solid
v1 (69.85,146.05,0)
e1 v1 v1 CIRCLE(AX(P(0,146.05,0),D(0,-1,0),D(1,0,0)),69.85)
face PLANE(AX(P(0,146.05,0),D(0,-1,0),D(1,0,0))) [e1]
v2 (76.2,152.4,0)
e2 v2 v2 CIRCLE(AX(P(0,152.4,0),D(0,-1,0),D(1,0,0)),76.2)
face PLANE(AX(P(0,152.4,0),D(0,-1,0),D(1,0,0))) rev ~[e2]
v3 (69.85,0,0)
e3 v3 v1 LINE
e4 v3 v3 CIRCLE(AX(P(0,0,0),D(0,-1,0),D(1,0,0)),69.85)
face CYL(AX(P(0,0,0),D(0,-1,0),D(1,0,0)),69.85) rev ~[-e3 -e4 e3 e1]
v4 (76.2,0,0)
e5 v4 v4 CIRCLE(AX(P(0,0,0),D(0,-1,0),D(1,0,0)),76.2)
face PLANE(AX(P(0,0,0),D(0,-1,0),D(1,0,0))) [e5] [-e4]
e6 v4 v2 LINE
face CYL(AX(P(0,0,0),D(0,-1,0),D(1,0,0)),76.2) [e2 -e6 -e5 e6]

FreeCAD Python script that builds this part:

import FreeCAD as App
import Part
import Sketcher

V = App.Vector
Q = App.Units.Quantity


def faces_at(feature, points):
    """Names of the faces that lie closest to the given points."""
    faces = feature.Shape.Faces
    near = lambda p: min(range(len(faces)), key=lambda i: faces[i].distToShape(Part.Vertex(*p))[0])
    return sorted({f"Face{near(p) + 1}" for p in points})

doc = App.newDocument("Part")
params = doc.addObject("Spreadsheet::Sheet", "Params")
for row, (alias, value) in enumerate([
    ("sketch1_diameter", "6 in"),
    ("pad1_length", "6 in"),
    ("thickness_wall", "0.25 in"),
], start=1):
    params.set(f"A{row}", alias)
    params.set(f"B{row}", "=" + value)
    params.setAlias(f"B{row}", alias)

body = doc.addObject("PartDesign::Body", "Body")

# Sketch on XZ plane
sketch1 = body.newObject("Sketcher::SketchObject", "Sketch")
sketch1.AttachmentSupport = (doc.getObject("XZ_Plane"), [""])
sketch1.MapMode = "FlatFace"
sketch1.addGeometry(Part.Circle(V(0, 0, 0), V(0, 0, 1), 76), False)
sketch1.addConstraint([
    Sketcher.Constraint("Coincident", 0, 3, -1, 1),
    Sketcher.Constraint("Diameter", 0, Q("6 in")),
])
sketch1.setExpression("Constraints[1]", "Params.sketch1_diameter")
pad1 = body.newObject("PartDesign::Pad", "Pad")
pad1.Profile = sketch1
pad1.setExpression("Length", "Params.pad1_length")
pad1.Reversed = True
doc.recompute()

thickness = body.newObject("PartDesign::Thickness", "Thickness")
thickness.Base = (pad1, faces_at(pad1, [(0, 0, 0)]))
thickness.setExpression("Value", "Params.thickness_wall")
thickness.Reversed = True
thickness.Join = "Arc"

doc.recompute()
